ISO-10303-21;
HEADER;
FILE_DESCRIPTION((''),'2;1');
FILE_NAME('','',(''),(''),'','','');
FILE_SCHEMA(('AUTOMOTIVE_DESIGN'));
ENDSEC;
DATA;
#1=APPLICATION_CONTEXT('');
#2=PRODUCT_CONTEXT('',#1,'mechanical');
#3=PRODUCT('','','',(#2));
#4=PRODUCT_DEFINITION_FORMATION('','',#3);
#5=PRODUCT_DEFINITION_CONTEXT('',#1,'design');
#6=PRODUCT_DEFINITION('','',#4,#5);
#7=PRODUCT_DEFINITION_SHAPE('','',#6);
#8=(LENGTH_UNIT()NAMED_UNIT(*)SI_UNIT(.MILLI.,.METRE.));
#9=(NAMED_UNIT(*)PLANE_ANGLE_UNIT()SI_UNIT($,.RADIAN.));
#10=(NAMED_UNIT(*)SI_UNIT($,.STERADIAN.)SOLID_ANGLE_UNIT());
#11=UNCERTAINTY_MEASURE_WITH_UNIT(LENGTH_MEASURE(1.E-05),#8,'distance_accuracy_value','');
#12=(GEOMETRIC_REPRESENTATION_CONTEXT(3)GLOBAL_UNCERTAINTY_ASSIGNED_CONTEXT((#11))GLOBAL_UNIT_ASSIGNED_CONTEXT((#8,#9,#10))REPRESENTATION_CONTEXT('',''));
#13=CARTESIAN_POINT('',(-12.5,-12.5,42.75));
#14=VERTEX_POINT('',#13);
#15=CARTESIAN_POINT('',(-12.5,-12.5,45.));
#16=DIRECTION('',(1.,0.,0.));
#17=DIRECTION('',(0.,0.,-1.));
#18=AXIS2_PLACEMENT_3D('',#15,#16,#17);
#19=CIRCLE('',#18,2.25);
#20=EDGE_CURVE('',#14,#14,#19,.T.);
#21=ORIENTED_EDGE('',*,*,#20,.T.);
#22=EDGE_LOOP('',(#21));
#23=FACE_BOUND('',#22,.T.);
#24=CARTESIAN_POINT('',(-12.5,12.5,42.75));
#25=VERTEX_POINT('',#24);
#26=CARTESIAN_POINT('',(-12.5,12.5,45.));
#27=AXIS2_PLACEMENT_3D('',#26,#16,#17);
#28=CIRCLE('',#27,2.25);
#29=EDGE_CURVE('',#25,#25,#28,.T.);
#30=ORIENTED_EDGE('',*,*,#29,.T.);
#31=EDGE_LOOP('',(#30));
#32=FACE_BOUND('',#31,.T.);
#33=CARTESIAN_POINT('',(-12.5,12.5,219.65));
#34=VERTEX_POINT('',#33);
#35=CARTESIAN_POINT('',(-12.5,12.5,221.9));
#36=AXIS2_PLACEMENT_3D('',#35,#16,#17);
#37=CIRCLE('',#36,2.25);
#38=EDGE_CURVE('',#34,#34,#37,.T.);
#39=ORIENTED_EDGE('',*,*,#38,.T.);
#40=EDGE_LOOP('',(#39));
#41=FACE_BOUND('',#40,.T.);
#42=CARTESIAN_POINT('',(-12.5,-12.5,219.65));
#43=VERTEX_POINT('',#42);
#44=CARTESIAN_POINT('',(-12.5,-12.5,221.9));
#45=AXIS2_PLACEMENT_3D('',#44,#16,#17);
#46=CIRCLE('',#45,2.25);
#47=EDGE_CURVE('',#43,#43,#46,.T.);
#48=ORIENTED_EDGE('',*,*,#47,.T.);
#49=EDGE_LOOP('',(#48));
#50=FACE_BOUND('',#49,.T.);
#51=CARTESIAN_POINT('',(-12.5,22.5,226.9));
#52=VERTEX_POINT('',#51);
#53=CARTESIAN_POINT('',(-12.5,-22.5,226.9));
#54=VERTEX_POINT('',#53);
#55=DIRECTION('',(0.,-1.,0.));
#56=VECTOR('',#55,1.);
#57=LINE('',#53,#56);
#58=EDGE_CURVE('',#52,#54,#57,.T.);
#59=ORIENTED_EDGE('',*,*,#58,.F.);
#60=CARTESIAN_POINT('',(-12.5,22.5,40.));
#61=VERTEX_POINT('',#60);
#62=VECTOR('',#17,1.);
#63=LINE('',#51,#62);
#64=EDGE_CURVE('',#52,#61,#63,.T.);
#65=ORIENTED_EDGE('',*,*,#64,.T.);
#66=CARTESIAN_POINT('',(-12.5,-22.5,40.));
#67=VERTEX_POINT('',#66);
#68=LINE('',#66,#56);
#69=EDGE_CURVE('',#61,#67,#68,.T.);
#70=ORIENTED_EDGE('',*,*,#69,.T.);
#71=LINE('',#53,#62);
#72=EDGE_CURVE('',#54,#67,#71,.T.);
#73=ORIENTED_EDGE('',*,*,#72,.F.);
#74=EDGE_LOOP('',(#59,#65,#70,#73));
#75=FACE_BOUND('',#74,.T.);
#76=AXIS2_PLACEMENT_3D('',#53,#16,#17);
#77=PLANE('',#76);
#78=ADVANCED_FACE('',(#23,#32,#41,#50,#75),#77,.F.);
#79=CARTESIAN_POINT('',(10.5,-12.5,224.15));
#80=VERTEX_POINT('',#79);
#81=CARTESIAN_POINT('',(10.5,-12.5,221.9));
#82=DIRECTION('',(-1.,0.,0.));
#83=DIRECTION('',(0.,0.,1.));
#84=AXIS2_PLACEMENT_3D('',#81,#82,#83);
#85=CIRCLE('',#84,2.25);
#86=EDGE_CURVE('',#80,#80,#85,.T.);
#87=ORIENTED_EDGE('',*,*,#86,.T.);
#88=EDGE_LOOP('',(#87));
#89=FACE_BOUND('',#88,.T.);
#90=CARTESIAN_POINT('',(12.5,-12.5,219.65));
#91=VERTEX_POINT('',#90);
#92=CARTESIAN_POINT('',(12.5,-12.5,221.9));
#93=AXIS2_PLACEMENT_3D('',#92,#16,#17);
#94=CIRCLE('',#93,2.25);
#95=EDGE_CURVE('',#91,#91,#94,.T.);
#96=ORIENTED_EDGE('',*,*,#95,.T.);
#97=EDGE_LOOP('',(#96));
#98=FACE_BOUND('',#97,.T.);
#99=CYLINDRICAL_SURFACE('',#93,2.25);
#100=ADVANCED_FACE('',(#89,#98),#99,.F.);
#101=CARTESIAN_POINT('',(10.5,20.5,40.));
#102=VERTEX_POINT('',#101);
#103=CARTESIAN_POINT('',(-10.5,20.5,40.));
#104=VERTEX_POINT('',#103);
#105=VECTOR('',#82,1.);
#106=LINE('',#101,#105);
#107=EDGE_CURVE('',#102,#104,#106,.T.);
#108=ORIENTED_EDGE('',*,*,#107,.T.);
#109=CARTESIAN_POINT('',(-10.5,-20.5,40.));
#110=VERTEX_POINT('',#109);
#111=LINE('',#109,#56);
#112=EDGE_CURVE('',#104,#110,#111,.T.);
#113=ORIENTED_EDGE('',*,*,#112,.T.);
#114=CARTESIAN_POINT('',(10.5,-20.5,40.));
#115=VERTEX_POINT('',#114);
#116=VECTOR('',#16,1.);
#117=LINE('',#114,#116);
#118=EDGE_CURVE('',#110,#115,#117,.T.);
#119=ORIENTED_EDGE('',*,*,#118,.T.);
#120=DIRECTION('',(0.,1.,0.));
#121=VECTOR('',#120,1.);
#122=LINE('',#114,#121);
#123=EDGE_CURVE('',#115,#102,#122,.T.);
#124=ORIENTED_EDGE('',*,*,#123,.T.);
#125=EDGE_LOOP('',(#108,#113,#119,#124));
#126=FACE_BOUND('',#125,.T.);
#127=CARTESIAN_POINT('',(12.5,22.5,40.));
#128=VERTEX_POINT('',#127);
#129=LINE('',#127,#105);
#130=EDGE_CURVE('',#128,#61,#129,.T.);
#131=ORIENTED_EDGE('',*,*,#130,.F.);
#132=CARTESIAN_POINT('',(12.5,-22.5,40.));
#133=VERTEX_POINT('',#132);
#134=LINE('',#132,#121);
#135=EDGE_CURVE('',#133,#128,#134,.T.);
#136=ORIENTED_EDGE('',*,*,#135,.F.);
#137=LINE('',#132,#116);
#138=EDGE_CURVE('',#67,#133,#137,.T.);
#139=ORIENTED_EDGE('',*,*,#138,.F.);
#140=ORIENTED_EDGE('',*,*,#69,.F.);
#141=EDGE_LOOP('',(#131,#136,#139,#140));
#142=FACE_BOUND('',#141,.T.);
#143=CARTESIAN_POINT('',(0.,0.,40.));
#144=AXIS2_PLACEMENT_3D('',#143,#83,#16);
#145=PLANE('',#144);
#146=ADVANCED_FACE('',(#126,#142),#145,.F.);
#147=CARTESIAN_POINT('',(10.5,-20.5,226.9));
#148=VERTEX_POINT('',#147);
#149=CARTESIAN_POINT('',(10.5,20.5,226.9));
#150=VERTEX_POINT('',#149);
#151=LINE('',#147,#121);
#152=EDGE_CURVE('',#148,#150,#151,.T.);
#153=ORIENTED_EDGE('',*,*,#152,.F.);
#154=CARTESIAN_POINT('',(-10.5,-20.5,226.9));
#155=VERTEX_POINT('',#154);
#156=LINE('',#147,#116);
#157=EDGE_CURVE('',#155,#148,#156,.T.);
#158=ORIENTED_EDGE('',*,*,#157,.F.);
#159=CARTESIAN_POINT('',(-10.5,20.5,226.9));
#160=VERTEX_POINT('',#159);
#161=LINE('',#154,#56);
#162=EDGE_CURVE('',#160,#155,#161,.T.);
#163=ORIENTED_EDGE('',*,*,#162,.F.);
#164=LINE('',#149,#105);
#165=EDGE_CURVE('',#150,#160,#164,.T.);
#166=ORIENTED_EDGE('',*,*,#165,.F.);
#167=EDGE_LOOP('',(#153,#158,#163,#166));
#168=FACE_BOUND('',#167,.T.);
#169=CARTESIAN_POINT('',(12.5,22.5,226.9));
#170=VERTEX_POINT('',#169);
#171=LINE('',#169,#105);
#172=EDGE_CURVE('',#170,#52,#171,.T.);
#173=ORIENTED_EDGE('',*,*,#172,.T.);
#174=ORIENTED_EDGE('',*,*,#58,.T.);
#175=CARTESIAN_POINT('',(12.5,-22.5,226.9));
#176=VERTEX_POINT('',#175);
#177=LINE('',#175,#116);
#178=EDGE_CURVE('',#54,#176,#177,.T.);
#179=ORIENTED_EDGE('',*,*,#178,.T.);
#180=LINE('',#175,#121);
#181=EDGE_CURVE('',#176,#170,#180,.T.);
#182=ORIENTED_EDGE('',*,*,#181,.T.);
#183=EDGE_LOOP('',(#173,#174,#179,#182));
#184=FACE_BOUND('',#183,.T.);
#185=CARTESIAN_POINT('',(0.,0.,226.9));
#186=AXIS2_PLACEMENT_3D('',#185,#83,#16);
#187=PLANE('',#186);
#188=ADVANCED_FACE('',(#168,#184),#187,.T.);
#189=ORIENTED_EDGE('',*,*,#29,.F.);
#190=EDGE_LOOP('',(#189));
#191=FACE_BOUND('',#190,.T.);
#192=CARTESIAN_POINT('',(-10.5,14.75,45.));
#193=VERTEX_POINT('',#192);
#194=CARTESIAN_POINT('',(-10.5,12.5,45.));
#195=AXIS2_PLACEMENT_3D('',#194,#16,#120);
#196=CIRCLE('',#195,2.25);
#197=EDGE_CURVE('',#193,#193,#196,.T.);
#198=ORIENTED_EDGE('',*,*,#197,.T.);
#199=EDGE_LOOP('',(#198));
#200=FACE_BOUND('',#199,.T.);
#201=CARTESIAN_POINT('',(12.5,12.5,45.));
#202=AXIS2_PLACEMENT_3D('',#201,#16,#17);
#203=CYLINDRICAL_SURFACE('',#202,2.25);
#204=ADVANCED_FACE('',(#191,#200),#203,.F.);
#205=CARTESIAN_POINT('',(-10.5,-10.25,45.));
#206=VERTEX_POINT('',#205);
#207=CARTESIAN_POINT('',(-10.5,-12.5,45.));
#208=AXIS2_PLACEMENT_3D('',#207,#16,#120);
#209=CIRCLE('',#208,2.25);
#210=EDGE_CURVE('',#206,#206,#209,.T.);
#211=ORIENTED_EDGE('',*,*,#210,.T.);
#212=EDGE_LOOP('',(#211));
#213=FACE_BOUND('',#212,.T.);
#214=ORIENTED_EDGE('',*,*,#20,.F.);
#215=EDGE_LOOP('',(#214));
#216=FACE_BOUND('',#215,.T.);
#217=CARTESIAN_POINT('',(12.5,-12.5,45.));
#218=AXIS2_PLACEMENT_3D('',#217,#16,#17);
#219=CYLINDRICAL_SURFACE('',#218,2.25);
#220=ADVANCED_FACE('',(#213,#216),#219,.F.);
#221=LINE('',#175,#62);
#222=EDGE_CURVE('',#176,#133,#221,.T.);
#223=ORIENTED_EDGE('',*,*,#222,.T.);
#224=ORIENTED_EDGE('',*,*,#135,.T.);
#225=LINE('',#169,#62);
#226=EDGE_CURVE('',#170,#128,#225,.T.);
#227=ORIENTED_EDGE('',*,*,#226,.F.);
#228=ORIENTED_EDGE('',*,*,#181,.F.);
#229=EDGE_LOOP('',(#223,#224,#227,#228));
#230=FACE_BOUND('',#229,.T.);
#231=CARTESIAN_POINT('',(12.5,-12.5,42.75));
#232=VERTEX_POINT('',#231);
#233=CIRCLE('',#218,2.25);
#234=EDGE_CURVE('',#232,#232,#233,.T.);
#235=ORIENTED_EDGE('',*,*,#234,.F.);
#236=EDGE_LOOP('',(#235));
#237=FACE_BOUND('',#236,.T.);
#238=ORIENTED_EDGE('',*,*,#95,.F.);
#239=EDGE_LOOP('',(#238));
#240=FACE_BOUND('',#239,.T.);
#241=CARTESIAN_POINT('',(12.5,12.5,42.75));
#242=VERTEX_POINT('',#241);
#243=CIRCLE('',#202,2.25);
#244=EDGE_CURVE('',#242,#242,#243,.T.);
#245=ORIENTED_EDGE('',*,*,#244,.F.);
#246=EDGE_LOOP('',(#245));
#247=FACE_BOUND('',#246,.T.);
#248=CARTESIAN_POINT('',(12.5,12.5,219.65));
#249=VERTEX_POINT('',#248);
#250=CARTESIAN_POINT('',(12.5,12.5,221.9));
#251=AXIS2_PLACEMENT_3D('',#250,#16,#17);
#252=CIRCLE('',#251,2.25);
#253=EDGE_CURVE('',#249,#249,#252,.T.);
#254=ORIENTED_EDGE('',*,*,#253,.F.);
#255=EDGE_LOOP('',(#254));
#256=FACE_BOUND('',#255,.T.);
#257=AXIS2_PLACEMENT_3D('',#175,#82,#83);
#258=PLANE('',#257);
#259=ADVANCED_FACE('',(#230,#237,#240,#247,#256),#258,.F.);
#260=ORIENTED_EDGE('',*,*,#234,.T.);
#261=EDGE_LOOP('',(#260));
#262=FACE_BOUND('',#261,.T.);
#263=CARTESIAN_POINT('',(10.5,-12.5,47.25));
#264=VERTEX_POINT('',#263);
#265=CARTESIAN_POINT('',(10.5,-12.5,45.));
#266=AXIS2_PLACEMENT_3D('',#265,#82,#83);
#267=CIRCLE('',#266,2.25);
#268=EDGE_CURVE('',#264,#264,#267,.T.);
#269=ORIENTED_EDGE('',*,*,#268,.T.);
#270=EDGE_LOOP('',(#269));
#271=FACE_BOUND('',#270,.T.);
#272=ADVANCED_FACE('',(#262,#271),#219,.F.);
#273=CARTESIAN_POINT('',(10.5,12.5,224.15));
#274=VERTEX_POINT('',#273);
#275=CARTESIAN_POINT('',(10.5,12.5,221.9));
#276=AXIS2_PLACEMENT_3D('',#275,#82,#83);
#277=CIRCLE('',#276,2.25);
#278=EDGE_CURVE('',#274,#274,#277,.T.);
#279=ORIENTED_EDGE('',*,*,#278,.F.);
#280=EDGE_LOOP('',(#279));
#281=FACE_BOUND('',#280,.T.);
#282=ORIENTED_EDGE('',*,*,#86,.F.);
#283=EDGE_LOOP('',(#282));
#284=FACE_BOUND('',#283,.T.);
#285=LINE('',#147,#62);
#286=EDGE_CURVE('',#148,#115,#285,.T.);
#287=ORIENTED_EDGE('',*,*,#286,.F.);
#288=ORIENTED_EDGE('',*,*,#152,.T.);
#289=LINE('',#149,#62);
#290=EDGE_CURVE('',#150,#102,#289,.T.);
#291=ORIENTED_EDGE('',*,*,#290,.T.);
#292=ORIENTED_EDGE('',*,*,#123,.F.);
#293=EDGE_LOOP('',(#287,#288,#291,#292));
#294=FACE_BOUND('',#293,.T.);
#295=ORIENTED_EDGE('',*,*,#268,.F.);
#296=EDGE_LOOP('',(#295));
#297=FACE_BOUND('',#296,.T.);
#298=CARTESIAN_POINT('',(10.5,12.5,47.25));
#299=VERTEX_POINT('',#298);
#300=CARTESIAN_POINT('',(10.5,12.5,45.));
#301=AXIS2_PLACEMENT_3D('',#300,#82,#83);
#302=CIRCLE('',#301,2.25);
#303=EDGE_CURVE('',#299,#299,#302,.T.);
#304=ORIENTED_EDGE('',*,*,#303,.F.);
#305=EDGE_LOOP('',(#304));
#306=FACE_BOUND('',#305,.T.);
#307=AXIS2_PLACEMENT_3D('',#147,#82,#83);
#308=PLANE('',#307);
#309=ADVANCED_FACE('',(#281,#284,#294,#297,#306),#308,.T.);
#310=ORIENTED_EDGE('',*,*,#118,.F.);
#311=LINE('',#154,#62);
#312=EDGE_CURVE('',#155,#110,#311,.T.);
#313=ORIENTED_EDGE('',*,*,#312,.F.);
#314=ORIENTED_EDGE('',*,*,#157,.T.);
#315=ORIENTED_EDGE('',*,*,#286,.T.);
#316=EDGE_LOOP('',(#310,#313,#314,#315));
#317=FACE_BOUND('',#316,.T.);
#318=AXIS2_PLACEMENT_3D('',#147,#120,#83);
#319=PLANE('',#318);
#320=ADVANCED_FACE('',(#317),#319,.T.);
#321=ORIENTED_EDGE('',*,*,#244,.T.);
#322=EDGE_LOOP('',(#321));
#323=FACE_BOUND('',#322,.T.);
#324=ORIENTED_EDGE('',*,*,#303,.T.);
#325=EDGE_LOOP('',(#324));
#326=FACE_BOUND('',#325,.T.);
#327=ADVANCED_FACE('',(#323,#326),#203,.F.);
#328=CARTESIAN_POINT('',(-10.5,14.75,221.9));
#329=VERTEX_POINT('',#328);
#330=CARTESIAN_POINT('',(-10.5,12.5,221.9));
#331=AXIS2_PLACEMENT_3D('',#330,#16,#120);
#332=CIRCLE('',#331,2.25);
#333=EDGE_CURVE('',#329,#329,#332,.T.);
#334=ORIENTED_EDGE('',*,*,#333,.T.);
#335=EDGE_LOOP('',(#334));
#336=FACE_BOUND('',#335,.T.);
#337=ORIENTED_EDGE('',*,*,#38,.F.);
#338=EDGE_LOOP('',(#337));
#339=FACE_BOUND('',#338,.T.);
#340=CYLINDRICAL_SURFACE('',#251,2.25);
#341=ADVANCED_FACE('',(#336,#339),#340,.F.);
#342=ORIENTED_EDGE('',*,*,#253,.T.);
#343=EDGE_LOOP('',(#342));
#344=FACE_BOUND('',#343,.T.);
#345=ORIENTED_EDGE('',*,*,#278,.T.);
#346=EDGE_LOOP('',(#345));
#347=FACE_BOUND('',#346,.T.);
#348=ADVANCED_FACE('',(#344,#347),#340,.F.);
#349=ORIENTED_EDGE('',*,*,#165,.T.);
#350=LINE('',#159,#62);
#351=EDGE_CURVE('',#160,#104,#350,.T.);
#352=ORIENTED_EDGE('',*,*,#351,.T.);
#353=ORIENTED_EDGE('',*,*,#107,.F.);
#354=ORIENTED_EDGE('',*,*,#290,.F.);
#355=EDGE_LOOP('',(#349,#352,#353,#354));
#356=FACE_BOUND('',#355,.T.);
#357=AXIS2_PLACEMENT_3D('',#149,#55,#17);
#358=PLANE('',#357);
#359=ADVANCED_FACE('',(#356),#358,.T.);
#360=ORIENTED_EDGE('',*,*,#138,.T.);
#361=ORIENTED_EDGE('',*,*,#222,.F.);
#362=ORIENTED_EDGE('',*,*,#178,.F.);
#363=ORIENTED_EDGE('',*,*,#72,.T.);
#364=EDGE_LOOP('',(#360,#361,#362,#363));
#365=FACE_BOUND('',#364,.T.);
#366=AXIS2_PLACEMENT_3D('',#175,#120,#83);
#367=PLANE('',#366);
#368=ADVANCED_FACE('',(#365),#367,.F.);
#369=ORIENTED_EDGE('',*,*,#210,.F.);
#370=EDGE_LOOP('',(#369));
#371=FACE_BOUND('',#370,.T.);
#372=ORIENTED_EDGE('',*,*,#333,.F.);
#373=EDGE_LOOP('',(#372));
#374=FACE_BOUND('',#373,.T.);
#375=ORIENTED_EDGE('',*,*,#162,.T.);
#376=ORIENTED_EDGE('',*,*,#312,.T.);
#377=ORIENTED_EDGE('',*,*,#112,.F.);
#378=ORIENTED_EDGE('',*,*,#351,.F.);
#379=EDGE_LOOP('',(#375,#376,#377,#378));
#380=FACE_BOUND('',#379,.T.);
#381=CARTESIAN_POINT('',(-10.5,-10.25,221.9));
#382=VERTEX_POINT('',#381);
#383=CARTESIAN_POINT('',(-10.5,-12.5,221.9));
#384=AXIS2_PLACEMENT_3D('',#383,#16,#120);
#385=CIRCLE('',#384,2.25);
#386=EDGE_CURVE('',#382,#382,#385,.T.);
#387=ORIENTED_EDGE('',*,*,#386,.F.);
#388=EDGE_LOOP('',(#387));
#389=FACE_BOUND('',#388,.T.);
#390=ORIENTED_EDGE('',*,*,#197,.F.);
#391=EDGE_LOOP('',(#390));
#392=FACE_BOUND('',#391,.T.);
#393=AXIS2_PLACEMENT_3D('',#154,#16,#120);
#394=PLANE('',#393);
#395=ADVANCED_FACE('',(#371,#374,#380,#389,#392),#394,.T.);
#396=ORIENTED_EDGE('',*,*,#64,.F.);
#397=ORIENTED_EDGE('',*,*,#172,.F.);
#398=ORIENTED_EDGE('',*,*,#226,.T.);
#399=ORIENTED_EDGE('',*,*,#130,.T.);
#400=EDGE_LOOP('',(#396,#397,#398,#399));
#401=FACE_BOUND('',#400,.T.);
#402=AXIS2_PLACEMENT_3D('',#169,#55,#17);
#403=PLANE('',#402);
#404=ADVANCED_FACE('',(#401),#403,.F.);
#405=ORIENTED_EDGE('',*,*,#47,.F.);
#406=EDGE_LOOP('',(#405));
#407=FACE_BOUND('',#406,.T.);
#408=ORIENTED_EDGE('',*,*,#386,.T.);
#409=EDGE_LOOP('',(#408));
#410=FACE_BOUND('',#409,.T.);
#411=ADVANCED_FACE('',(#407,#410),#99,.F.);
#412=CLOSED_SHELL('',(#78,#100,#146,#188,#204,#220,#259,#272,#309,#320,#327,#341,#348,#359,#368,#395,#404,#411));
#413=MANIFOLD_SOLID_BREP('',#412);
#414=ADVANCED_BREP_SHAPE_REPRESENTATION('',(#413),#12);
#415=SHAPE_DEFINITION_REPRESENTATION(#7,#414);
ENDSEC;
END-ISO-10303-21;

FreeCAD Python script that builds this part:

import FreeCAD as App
import Part
import Sketcher

V = App.Vector
Q = App.Units.Quantity

doc = App.newDocument("Part")
params = doc.addObject("Spreadsheet::Sheet", "Params")
for row, (alias, value) in enumerate([
    ("sketch1_width", "25 mm"),
    ("sketch1_width2", "21 mm"),
    ("sketch1_height", "45 mm"),
    ("sketch1_height2", "41 mm"),
    ("pad1_length", "186.9 mm"),
    ("sketch2_diameter", "4.5 mm"),
    ("hole_diameter", "4.5 mm"),
], start=1):
    params.set(f"A{row}", alias)
    params.set(f"B{row}", "=" + value)
    params.setAlias(f"B{row}", alias)

body = doc.addObject("PartDesign::Body", "Body")

# Sketch on XY plane
sketch1 = doc.addObject("Sketcher::SketchObject", "Sketch")
body.addObject(sketch1)
sketch1.AttachmentSupport = (doc.XY_Plane, [""])
sketch1.MapMode = "FlatFace"
sketch1.AttachmentOffset = App.Placement(V(0, 0, 40), App.Rotation())
sketch1.addGeometry(Part.LineSegment(V(-12, 22, 0), V(-12, -22, 0)), False)
sketch1.addGeometry(Part.LineSegment(V(-12, -22, 0), V(12, -22, 0)), False)
sketch1.addGeometry(Part.LineSegment(V(12, -22, 0), V(12, 22, 0)), False)
sketch1.addGeometry(Part.LineSegment(V(12, 22, 0), V(-12, 22, 0)), False)
sketch1.addGeometry(Part.LineSegment(V(10, -20, 0), V(-10, -20, 0)), False)
sketch1.addGeometry(Part.LineSegment(V(-10, -20, 0), V(-10, 20, 0)), False)
sketch1.addGeometry(Part.LineSegment(V(-10, 20, 0), V(10, 20, 0)), False)
sketch1.addGeometry(Part.LineSegment(V(10, 20, 0), V(10, -20, 0)), False)
sketch1.addConstraint(Sketcher.Constraint("Coincident", 0, 2, 1, 1))
sketch1.addConstraint(Sketcher.Constraint("Coincident", 1, 2, 2, 1))
sketch1.addConstraint(Sketcher.Constraint("Coincident", 2, 2, 3, 1))
sketch1.addConstraint(Sketcher.Constraint("Coincident", 3, 2, 0, 1))
sketch1.addConstraint(Sketcher.Constraint("Coincident", 4, 2, 5, 1))
sketch1.addConstraint(Sketcher.Constraint("Coincident", 5, 2, 6, 1))
sketch1.addConstraint(Sketcher.Constraint("Coincident", 6, 2, 7, 1))
sketch1.addConstraint(Sketcher.Constraint("Coincident", 7, 2, 4, 1))
sketch1.addConstraint(Sketcher.Constraint("Vertical", 0))
sketch1.addConstraint(Sketcher.Constraint("Horizontal", 1))
sketch1.addConstraint(Sketcher.Constraint("Vertical", 2))
sketch1.addConstraint(Sketcher.Constraint("Horizontal", 3))
sketch1.addConstraint(Sketcher.Constraint("Horizontal", 4))
sketch1.addConstraint(Sketcher.Constraint("Vertical", 5))
sketch1.addConstraint(Sketcher.Constraint("Horizontal", 6))
sketch1.addConstraint(Sketcher.Constraint("Vertical", 7))
sketch1.addConstraint(Sketcher.Constraint("Symmetric", 0, 2, 2, 2, -1, 1))
sketch1.addConstraint(Sketcher.Constraint("Symmetric", 4, 2, 6, 2, -1, 1))
sketch1.addConstraint(Sketcher.Constraint("DistanceX", 1, 1, 1, 2, Q("25 mm")))
sketch1.addConstraint(Sketcher.Constraint("DistanceX", 4, 2, 4, 1, Q("21 mm")))
sketch1.addConstraint(Sketcher.Constraint("DistanceY", 0, 2, 0, 1, Q("45 mm")))
sketch1.addConstraint(Sketcher.Constraint("DistanceY", 5, 1, 5, 2, Q("41 mm")))
sketch1.setExpression("Constraints[18]", "Params.sketch1_width")
sketch1.setExpression("Constraints[19]", "Params.sketch1_width2")
sketch1.setExpression("Constraints[20]", "Params.sketch1_height")
sketch1.setExpression("Constraints[21]", "Params.sketch1_height2")
pad1 = doc.addObject("PartDesign::Pad", "Pad")
body.addObject(pad1)
pad1.Profile = sketch1
pad1.setExpression("Length", "Params.pad1_length")

# Sketch on YZ plane
sketch2 = doc.addObject("Sketcher::SketchObject", "Sketch001")
body.addObject(sketch2)
sketch2.AttachmentSupport = (doc.YZ_Plane, [""])
sketch2.MapMode = "FlatFace"
sketch2.AttachmentOffset = App.Placement(V(0, 0, 12.5), App.Rotation())
sketch2.addGeometry(Part.Circle(V(-12.5, 45, 0), V(0, 0, 1), 2.2), False)
sketch2.addGeometry(Part.Circle(V(12.5, 45, 0), V(0, 0, 1), 2.2), False)
sketch2.addGeometry(Part.Circle(V(12.5, 221.9, 0), V(0, 0, 1), 2.2), False)
sketch2.addGeometry(Part.Circle(V(-12.5, 221.9, 0), V(0, 0, 1), 2.2), False)
sketch2.addConstraint(Sketcher.Constraint("Equal", 0, 1))
sketch2.addConstraint(Sketcher.Constraint("Equal", 1, 2))
sketch2.addConstraint(Sketcher.Constraint("Equal", 2, 3))
sketch2.addConstraint(Sketcher.Constraint("Symmetric", 0, 3, 1, 3, -2))
sketch2.addConstraint(Sketcher.Constraint("Symmetric", 2, 3, 3, 3, -2))
sketch2.addConstraint(Sketcher.Constraint("Vertical", 1, 3, 2, 3))
sketch2.addConstraint(Sketcher.Constraint("Diameter", 0, Q("4.5 mm")))
sketch2.addConstraint(Sketcher.Constraint("DistanceY", -1, 1, 0, 3, Q("45 mm")))
sketch2.addConstraint(Sketcher.Constraint("DistanceX", 0, 3, 1, 3, Q("25 mm")))
sketch2.addConstraint(Sketcher.Constraint("DistanceY", -1, 1, 2, 3, Q("221.9 mm")))
sketch2.setExpression("Constraints[6]", "Params.sketch2_diameter")
doc.recompute()
hole = doc.addObject("PartDesign::Hole", "Hole")
body.addObject(hole)
hole.Profile = sketch2
hole.ThreadType = "None"
hole.setExpression("Diameter", "Params.hole_diameter")
hole.DepthType = "ThroughAll"

doc.recompute()
